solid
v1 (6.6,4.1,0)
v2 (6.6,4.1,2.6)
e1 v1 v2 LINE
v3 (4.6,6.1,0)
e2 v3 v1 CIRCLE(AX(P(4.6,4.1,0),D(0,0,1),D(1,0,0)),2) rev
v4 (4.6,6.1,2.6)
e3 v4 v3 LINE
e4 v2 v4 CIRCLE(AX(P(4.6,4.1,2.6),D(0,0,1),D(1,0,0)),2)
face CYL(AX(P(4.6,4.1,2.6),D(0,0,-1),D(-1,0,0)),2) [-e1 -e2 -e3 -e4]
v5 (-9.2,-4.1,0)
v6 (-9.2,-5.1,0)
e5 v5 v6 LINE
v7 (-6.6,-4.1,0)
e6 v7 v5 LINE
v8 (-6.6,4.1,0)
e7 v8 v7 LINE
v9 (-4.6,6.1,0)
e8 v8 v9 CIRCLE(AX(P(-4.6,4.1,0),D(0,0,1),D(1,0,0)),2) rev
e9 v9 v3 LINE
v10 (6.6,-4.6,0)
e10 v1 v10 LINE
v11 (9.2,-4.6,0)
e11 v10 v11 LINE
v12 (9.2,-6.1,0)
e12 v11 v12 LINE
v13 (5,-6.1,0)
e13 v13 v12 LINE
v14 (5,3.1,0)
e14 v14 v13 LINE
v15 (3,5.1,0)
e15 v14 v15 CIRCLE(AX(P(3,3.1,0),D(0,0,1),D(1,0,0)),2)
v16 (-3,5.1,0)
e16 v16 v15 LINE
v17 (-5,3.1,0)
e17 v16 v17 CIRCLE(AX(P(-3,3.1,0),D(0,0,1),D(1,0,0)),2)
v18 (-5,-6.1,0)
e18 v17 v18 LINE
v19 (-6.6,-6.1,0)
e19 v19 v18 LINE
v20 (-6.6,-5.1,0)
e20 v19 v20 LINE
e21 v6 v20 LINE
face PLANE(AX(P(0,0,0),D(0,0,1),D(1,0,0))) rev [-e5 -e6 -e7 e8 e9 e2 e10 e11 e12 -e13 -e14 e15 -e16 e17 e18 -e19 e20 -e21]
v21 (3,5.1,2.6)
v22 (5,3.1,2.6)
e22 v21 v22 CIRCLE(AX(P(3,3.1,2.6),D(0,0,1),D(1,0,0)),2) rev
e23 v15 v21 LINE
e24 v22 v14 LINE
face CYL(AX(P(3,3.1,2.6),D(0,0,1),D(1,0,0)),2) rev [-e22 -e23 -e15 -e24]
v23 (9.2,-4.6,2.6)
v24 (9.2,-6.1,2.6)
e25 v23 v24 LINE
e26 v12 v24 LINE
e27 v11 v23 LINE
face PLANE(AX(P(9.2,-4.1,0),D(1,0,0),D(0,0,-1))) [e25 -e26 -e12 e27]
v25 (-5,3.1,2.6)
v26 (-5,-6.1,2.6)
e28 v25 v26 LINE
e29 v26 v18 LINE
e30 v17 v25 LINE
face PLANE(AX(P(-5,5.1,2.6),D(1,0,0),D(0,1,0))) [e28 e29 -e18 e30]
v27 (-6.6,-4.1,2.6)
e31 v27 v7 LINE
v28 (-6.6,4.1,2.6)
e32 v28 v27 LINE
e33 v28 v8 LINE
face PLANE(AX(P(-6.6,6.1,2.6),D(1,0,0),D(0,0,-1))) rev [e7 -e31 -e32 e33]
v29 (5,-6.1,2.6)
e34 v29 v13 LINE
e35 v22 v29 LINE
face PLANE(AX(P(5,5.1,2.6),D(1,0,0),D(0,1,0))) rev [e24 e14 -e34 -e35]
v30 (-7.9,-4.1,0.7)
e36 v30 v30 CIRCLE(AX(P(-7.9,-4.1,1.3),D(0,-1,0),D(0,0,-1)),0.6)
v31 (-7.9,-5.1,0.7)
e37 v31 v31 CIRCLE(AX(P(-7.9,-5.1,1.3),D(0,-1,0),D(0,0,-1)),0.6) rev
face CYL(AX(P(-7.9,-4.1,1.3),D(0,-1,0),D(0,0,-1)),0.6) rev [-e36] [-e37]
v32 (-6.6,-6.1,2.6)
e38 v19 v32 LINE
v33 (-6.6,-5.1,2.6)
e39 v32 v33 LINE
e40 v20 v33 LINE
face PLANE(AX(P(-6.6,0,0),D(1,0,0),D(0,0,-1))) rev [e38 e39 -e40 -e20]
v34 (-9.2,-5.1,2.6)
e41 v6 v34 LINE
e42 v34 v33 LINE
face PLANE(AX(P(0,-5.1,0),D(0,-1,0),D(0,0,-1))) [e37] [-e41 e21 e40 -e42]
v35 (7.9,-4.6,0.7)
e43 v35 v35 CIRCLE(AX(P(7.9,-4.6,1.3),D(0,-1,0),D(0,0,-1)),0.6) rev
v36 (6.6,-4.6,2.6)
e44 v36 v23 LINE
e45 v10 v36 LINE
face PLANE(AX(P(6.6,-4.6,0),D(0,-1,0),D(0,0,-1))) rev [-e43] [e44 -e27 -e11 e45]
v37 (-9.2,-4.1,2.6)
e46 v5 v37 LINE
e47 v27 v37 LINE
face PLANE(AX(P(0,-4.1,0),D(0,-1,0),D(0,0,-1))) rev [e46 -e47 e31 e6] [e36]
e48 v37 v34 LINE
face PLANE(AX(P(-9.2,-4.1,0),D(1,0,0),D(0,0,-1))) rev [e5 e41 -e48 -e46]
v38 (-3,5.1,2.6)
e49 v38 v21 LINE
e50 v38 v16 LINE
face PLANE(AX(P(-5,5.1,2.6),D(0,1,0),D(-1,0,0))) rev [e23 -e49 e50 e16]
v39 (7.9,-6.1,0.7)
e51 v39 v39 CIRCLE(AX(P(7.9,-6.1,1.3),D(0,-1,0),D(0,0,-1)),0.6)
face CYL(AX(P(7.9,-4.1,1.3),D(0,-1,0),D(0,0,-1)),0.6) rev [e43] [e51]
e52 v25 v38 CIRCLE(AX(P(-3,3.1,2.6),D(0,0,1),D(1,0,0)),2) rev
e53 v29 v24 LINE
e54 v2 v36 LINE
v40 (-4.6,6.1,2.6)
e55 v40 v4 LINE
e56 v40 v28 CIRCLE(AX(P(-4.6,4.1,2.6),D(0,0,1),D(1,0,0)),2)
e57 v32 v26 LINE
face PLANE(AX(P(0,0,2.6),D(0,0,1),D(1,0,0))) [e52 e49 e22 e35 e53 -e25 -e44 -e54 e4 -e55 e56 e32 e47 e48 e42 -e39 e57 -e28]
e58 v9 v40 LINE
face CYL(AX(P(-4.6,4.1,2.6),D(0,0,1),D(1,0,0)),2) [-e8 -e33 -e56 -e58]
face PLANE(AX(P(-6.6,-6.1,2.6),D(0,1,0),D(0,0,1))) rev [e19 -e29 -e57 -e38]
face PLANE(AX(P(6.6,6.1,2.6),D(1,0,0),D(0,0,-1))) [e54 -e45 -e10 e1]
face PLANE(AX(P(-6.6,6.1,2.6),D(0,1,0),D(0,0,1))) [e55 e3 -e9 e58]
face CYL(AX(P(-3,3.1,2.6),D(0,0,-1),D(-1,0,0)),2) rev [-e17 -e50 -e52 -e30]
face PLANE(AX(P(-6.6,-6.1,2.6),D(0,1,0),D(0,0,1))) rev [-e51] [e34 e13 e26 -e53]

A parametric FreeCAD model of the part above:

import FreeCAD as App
import Part
import Sketcher

V = App.Vector


def edges_at(feature, points):
    """Names of the edges that pass closest to the given points."""
    edges = feature.Shape.Edges
    near = lambda p: min(range(len(edges)), key=lambda i: edges[i].distToShape(Part.Vertex(*p))[0])
    return sorted({f"Edge{near(p) + 1}" for p in points})

doc = App.newDocument("Part")
params = doc.addObject("Spreadsheet::Sheet", "Params")
for row, (alias, value) in enumerate([
    ("sketch1_width", "10 mm"),
    ("sketch1_width2", "13.2 mm"),
    ("sketch1_height", "12.2 mm"),
    ("sketch1_height2", "11.2 mm"),
    ("pad1_length", "2.6 mm"),
    ("fillet_radius", "2 mm"),
    ("sketch2_diameter", "1.2 mm"),
    ("sketch2_width", "2.6 mm"),
    ("pad2_length", "2 mm"),
    ("sketch3_height", "1 mm"),
    ("sketch3_width", "2.6 mm"),
    ("sketch3_height2", "0.5 mm"),
], start=1):
    params.set(f"A{row}", alias)
    params.set(f"B{row}", "=" + value)
    params.setAlias(f"B{row}", alias)

body = doc.addObject("PartDesign::Body", "Body")

sketch1 = body.newObject("Sketcher::SketchObject", "Sketch")
sketch1.AttachmentSupport = (doc.getObject("XY_Plane"), [""])
sketch1.MapMode = "FlatFace"
sketch1.addGeometry(Part.LineSegment(V(6.6, 6.1, 0), V(-6.6, 6.1, 0)), False)
sketch1.addGeometry(Part.LineSegment(V(-6.6, 6.1, 0), V(-6.6, -6.1, 0)), False)
sketch1.addGeometry(Part.LineSegment(V(-6.6, -6.1, 0), V(-5, -6.1, 0)), False)
sketch1.addGeometry(Part.LineSegment(V(-5, -6.1, 0), V(-5, 5.1, 0)), False)
sketch1.addGeometry(Part.LineSegment(V(-5, 5.1, 0), V(5, 5.1, 0)), False)
sketch1.addGeometry(Part.LineSegment(V(5, 5.1, 0), V(5, -6.1, 0)), False)
sketch1.addGeometry(Part.LineSegment(V(5, -6.1, 0), V(6.6, -6.1, 0)), False)
sketch1.addGeometry(Part.LineSegment(V(6.6, -6.1, 0), V(6.6, 6.1, 0)), False)
sketch1.addConstraint(Sketcher.Constraint("Coincident", 0, 2, 1, 1))
sketch1.addConstraint(Sketcher.Constraint("Coincident", 1, 2, 2, 1))
sketch1.addConstraint(Sketcher.Constraint("Coincident", 2, 2, 3, 1))
sketch1.addConstraint(Sketcher.Constraint("Coincident", 3, 2, 4, 1))
sketch1.addConstraint(Sketcher.Constraint("Coincident", 4, 2, 5, 1))
sketch1.addConstraint(Sketcher.Constraint("Coincident", 5, 2, 6, 1))
sketch1.addConstraint(Sketcher.Constraint("Coincident", 6, 2, 7, 1))
sketch1.addConstraint(Sketcher.Constraint("Coincident", 7, 2, 0, 1))
sketch1.addConstraint(Sketcher.Constraint("Horizontal", 0))
sketch1.addConstraint(Sketcher.Constraint("Vertical", 1))
sketch1.addConstraint(Sketcher.Constraint("Horizontal", 2))
sketch1.addConstraint(Sketcher.Constraint("Vertical", 3))
sketch1.addConstraint(Sketcher.Constraint("Horizontal", 4))
sketch1.addConstraint(Sketcher.Constraint("Vertical", 5))
sketch1.addConstraint(Sketcher.Constraint("Horizontal", 6))
sketch1.addConstraint(Sketcher.Constraint("Vertical", 7))
sketch1.addConstraint(Sketcher.Constraint("Symmetric", 0, 2, 6, 2, -1, 1))
sketch1.addConstraint(Sketcher.Constraint("Symmetric", 2, 2, 5, 2, -2))
sketch1.addConstraint(Sketcher.Constraint("DistanceX", 4, 1, 4, 2, 10.0))
sketch1.addConstraint(Sketcher.Constraint("DistanceX", 0, 2, 0, 1, 13.2))
sketch1.addConstraint(Sketcher.Constraint("DistanceY", 1, 2, 1, 1, 12.2))
sketch1.addConstraint(Sketcher.Constraint("DistanceY", 3, 1, 3, 2, 11.2))
sketch1.setExpression("Constraints[18]", "Params.sketch1_width")
sketch1.setExpression("Constraints[19]", "Params.sketch1_width2")
sketch1.setExpression("Constraints[20]", "Params.sketch1_height")
sketch1.setExpression("Constraints[21]", "Params.sketch1_height2")
pad1 = body.newObject("PartDesign::Pad", "Pad")
pad1.Profile = sketch1
pad1.setExpression("Length", "Params.pad1_length")
doc.recompute()

fillet = body.newObject("PartDesign::Fillet", "Fillet")
fillet.Base = (pad1, edges_at(pad1, [
    (5, 5.1, 1.3),
    (-5, 5.1, 1.3),
    (-6.6, 6.1, 1.3),
    (6.6, 6.1, 1.3),
]))
fillet.setExpression("Radius", "Params.fillet_radius")

sketch2 = body.newObject("Sketcher::SketchObject", "Sketch001")
sketch2.AttachmentSupport = (doc.getObject("XZ_Plane"), [""])
sketch2.MapMode = "FlatFace"
sketch2.AttachmentOffset = App.Placement(V(0, 0, 6.1), App.Rotation())
sketch2.addGeometry(Part.LineSegment(V(-9.2, 2.6, 0), V(-9.2, 0, 0)), False)
sketch2.addGeometry(Part.LineSegment(V(-9.2, 0, 0), V(-6.6, 0, 0)), False)
sketch2.addGeometry(Part.LineSegment(V(-6.6, 0, 0), V(-6.6, 2.6, 0)), False)
sketch2.addGeometry(Part.LineSegment(V(-6.6, 2.6, 0), V(-9.2, 2.6, 0)), False)
sketch2.addGeometry(Part.Circle(V(-7.9, 1.3, 0), V(0, 0, 1), 0.6), False)
sketch2.addGeometry(Part.LineSegment(V(6.6, 2.6, 0), V(6.6, 0, 0)), False)
sketch2.addGeometry(Part.LineSegment(V(6.6, 0, 0), V(9.2, 0, 0)), False)
sketch2.addGeometry(Part.LineSegment(V(9.2, 0, 0), V(9.2, 2.6, 0)), False)
sketch2.addGeometry(Part.LineSegment(V(9.2, 2.6, 0), V(6.6, 2.6, 0)), False)
sketch2.addGeometry(Part.Circle(V(7.9, 1.3, 0), V(0, 0, 1), 0.6), False)
sketch2.addConstraint(Sketcher.Constraint("Coincident", 0, 2, 1, 1))
sketch2.addConstraint(Sketcher.Constraint("Coincident", 1, 2, 2, 1))
sketch2.addConstraint(Sketcher.Constraint("Coincident", 2, 2, 3, 1))
sketch2.addConstraint(Sketcher.Constraint("Coincident", 3, 2, 0, 1))
sketch2.addConstraint(Sketcher.Constraint("Coincident", 5, 2, 6, 1))
sketch2.addConstraint(Sketcher.Constraint("Coincident", 6, 2, 7, 1))
sketch2.addConstraint(Sketcher.Constraint("Coincident", 7, 2, 8, 1))
sketch2.addConstraint(Sketcher.Constraint("Coincident", 8, 2, 5, 1))
sketch2.addConstraint(Sketcher.Constraint("Vertical", 0))
sketch2.addConstraint(Sketcher.Constraint("Horizontal", 1))
sketch2.addConstraint(Sketcher.Constraint("Vertical", 2))
sketch2.addConstraint(Sketcher.Constraint("Horizontal", 3))
sketch2.addConstraint(Sketcher.Constraint("Vertical", 5))
sketch2.addConstraint(Sketcher.Constraint("Horizontal", 6))
sketch2.addConstraint(Sketcher.Constraint("Vertical", 7))
sketch2.addConstraint(Sketcher.Constraint("Horizontal", 8))
sketch2.addConstraint(Sketcher.Constraint("Equal", 4, 9))
sketch2.addConstraint(Sketcher.Constraint("Symmetric", 1, 2, 5, 2, -1, 1))
sketch2.addConstraint(Sketcher.Constraint("Symmetric", 4, 3, 9, 3, -2))
sketch2.addConstraint(Sketcher.Constraint("Symmetric", 0, 2, 6, 2, -2))
sketch2.addConstraint(Sketcher.Constraint("Horizontal", 3, 2, 7, 2))
sketch2.addConstraint(Sketcher.Constraint("Equal", 8, 0))
sketch2.addConstraint(Sketcher.Constraint("Diameter", 4, 1.2))
sketch2.addConstraint(Sketcher.Constraint("DistanceX", 1, 1, 1, 2, 2.6))
sketch2.addConstraint(Sketcher.Constraint("DistanceX", 4, 3, -1, 1, 7.9))
sketch2.addConstraint(Sketcher.Constraint("DistanceY", -1, 1, 4, 3, 1.3))
sketch2.addConstraint(Sketcher.Constraint("DistanceX", 0, 2, -1, 1, 9.2))
sketch2.setExpression("Constraints[22]", "Params.sketch2_diameter")
sketch2.setExpression("Constraints[23]", "Params.sketch2_width")
pad2 = body.newObject("PartDesign::Pad", "Pad001")
pad2.Profile = sketch2
pad2.setExpression("Length", "Params.pad2_length")
pad2.Reversed = True

sketch3 = body.newObject("Sketcher::SketchObject", "Sketch002")
sketch3.AttachmentSupport = (doc.getObject("XY_Plane"), [""])
sketch3.MapMode = "FlatFace"
sketch3.AttachmentOffset = App.Placement(V(0, 0, 2.6), App.Rotation())
sketch3.addGeometry(Part.LineSegment(V(-9.2, -5.1, 0), V(-9.2, -6.1, 0)), False)
sketch3.addGeometry(Part.LineSegment(V(-9.2, -6.1, 0), V(-6.6, -6.1, 0)), False)
sketch3.addGeometry(Part.LineSegment(V(-6.6, -6.1, 0), V(-6.6, -5.1, 0)), False)
sketch3.addGeometry(Part.LineSegment(V(-6.6, -5.1, 0), V(-9.2, -5.1, 0)), False)
sketch3.addGeometry(Part.LineSegment(V(6.6, -4.1, 0), V(6.6, -4.6, 0)), False)
sketch3.addGeometry(Part.LineSegment(V(6.6, -4.6, 0), V(9.2, -4.6, 0)), False)
sketch3.addGeometry(Part.LineSegment(V(9.2, -4.6, 0), V(9.2, -4.1, 0)), False)
sketch3.addGeometry(Part.LineSegment(V(9.2, -4.1, 0), V(6.6, -4.1, 0)), False)
sketch3.addConstraint(Sketcher.Constraint("Coincident", 0, 2, 1, 1))
sketch3.addConstraint(Sketcher.Constraint("Coincident", 1, 2, 2, 1))
sketch3.addConstraint(Sketcher.Constraint("Coincident", 2, 2, 3, 1))
sketch3.addConstraint(Sketcher.Constraint("Coincident", 3, 2, 0, 1))
sketch3.addConstraint(Sketcher.Constraint("Coincident", 4, 2, 5, 1))
sketch3.addConstraint(Sketcher.Constraint("Coincident", 5, 2, 6, 1))
sketch3.addConstraint(Sketcher.Constraint("Coincident", 6, 2, 7, 1))
sketch3.addConstraint(Sketcher.Constraint("Coincident", 7, 2, 4, 1))
sketch3.addConstraint(Sketcher.Constraint("Vertical", 0))
sketch3.addConstraint(Sketcher.Constraint("Horizontal", 1))
sketch3.addConstraint(Sketcher.Constraint("Vertical", 2))
sketch3.addConstraint(Sketcher.Constraint("Horizontal", 3))
sketch3.addConstraint(Sketcher.Constraint("Vertical", 4))
sketch3.addConstraint(Sketcher.Constraint("Horizontal", 5))
sketch3.addConstraint(Sketcher.Constraint("Vertical", 6))
sketch3.addConstraint(Sketcher.Constraint("Horizontal", 7))
sketch3.addConstraint(Sketcher.Constraint("Equal", 3, 5))
sketch3.addConstraint(Sketcher.Constraint("DistanceY", 0, 2, 0, 1, 1.0))
sketch3.addConstraint(Sketcher.Constraint("DistanceX", 1, 1, 1, 2, 2.6))
sketch3.addConstraint(Sketcher.Constraint("DistanceY", 4, 2, 4, 1, 0.5))
sketch3.addConstraint(Sketcher.Constraint("DistanceY", 2, 2, 6, 2, 1.0))
sketch3.addConstraint(Sketcher.Constraint("DistanceX", 0, 2, -1, 1, 9.2))
sketch3.addConstraint(Sketcher.Constraint("DistanceY", 0, 2, -1, 1, 6.1))
sketch3.addConstraint(Sketcher.Constraint("DistanceX", -1, 1, 4, 2, 6.6))
sketch3.setExpression("Constraints[17]", "Params.sketch3_height")
sketch3.setExpression("Constraints[18]", "Params.sketch3_width")
sketch3.setExpression("Constraints[19]", "Params.sketch3_height2")
pocket1 = body.newObject("PartDesign::Pocket", "Pocket")
pocket1.Profile = sketch3
pocket1.Type = "ThroughAll"

doc.recompute()
